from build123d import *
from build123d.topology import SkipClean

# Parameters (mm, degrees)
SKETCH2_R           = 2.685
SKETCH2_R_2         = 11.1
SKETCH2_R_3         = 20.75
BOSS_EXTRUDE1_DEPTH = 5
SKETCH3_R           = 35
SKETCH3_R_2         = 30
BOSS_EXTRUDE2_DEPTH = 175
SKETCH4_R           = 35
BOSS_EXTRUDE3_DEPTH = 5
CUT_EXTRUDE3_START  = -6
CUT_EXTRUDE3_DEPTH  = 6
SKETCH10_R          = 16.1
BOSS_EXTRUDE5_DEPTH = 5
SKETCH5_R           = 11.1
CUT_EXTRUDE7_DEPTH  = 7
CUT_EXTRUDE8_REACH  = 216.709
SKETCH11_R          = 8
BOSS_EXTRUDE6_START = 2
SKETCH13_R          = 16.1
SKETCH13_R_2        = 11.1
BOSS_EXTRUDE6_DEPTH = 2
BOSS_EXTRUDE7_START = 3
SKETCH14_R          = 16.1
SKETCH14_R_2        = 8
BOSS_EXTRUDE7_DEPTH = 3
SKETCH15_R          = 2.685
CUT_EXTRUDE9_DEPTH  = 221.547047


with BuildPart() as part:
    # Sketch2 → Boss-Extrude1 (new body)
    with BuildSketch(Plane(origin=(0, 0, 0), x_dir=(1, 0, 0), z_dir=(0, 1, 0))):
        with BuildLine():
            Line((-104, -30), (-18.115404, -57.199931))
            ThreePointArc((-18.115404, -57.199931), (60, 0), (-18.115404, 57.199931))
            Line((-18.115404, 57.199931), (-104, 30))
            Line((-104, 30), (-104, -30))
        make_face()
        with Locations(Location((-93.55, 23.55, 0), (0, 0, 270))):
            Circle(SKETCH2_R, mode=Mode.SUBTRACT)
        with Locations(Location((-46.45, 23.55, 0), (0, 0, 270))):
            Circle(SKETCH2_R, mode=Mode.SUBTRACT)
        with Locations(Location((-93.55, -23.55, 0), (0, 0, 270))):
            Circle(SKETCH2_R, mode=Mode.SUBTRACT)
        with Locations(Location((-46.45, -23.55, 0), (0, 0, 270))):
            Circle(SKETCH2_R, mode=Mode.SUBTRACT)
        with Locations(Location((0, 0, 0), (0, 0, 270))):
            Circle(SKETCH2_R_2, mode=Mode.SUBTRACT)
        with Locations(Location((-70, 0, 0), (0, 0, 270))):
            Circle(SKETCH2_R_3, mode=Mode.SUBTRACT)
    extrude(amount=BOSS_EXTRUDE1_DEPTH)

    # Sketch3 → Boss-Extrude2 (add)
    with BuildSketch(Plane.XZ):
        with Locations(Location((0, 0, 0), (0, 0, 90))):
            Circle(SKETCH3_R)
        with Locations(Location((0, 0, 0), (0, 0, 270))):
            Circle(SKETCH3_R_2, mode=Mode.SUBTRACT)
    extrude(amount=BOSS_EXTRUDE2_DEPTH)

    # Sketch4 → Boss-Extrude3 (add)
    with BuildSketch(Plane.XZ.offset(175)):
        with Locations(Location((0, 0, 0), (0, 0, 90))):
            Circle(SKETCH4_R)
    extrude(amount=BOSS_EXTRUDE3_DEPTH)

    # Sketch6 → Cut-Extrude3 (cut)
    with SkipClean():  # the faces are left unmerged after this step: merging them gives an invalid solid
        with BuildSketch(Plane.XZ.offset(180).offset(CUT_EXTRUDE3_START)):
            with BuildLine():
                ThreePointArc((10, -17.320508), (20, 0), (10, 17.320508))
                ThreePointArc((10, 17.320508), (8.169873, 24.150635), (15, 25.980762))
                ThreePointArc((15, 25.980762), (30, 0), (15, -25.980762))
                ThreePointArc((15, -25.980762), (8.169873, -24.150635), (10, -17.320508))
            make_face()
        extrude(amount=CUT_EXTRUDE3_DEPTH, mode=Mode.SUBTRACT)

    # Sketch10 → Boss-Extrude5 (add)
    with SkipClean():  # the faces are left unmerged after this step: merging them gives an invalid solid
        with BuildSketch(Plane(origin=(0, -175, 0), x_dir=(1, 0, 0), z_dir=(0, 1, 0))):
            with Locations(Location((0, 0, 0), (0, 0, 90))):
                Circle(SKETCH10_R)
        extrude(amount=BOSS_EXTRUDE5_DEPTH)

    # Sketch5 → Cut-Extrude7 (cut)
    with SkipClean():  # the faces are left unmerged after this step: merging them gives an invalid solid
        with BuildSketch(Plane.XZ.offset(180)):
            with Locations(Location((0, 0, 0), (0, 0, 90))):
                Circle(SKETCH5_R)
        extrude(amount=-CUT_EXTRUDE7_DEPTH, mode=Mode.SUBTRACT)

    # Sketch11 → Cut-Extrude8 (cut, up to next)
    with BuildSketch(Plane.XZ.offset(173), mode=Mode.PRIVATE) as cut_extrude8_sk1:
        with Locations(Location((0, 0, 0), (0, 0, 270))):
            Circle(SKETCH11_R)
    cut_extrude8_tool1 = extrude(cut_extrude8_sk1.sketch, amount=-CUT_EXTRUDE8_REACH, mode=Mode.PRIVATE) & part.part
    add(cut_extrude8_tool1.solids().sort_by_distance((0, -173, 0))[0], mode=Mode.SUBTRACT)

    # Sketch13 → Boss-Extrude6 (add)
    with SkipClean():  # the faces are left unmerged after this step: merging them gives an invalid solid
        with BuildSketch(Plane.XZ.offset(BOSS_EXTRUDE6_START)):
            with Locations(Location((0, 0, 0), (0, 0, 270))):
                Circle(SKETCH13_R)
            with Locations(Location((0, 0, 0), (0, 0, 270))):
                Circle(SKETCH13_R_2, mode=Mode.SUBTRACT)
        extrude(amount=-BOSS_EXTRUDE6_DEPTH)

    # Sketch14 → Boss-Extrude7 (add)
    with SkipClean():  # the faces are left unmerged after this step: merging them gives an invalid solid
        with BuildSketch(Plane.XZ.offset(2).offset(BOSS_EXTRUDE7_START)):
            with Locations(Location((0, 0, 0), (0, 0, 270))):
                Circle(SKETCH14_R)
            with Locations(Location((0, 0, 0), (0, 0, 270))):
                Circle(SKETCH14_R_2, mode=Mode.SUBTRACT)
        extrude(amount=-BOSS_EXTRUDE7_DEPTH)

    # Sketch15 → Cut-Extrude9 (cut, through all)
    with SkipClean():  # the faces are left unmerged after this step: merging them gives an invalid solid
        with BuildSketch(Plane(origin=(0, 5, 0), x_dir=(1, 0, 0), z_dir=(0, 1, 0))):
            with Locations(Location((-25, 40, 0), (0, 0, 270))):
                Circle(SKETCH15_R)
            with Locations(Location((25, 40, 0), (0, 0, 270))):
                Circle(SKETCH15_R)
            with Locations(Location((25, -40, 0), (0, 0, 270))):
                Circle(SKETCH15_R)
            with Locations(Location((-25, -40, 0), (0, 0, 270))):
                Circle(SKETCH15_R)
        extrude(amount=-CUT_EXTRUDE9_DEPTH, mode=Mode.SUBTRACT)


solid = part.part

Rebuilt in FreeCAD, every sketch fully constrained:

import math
import FreeCAD as App
import Part
import Sketcher
from FreeCAD import Vector

doc = App.newDocument("Part")
params = doc.addObject("Spreadsheet::Sheet", "Params")
for row, (alias, value) in enumerate([
    ("sketch1_radius", "60 mm"),
    ("sketch1_diameter", "41.5 mm"),
    ("sketch1_diameter2", "22.2 mm"),
    ("sketch1_diameter3", "5.37 mm"),
    ("sketch1_height", "60 mm"),
    ("pad1_length", "5 mm"),
    ("sketch2_diameter", "70 mm"),
    ("sketch2_diameter2", "60 mm"),
    ("pad2_length", "175 mm"),
    ("sketch3_diameter", "70 mm"),
    ("pad3_length", "5 mm"),
    ("sketch4_radius", "20 mm"),
    ("sketch4_radius2", "5 mm"),
    ("pocket1_length", "6 mm"),
    ("sketch5_diameter", "32.2 mm"),
    ("pad4_length", "5 mm"),
    ("sketch6_diameter", "22.2 mm"),
    ("pocket2_length", "7 mm"),
    ("sketch7_diameter", "16 mm"),
    ("sketch8_diameter", "32.2 mm"),
    ("sketch8_diameter2", "22.2 mm"),
    ("pad5_length", "2 mm"),
    ("sketch9_diameter", "16 mm"),
    ("sketch9_diameter2", "32.2 mm"),
    ("pad6_length", "3 mm"),
    ("sketch10_diameter", "5.37 mm"),
], start=1):
    params.set(f"A{row}", alias)
    params.set(f"B{row}", "=" + value)
    params.setAlias(f"B{row}", alias)

body = doc.addObject("PartDesign::Body", "Body")

sketch1 = body.newObject("Sketcher::SketchObject", "Sketch")
sketch1.AttachmentSupport = (doc.getObject("XZ_Plane"), [""])
sketch1.MapMode = "FlatFace"
sketch1.addGeometry(Part.LineSegment(Vector(-104, 30, 0), Vector(-18.1, 57.2, 0)), False)
sketch1.addGeometry(Part.ArcOfCircle(Part.Circle(Vector(0, 0, 0), Vector(0, 0, 1), 60), math.radians(-108), math.radians(108)), False)
sketch1.addGeometry(Part.LineSegment(Vector(-18.1, -57.2, 0), Vector(-104, -30, 0)), False)
sketch1.addGeometry(Part.LineSegment(Vector(-104, -30, 0), Vector(-104, 30, 0)), False)
sketch1.addGeometry(Part.Circle(Vector(-93.5, 23.6, 0), Vector(0, 0, 1), 2.7), False)
sketch1.addGeometry(Part.Circle(Vector(-46.5, 23.6, 0), Vector(0, 0, 1), 2.7), False)
sketch1.addGeometry(Part.Circle(Vector(-70, 0, 0), Vector(0, 0, 1), 20.8), False)
sketch1.addGeometry(Part.Circle(Vector(0, 0, 0), Vector(0, 0, 1), 11.1), False)
sketch1.addGeometry(Part.Circle(Vector(-93.5, -23.6, 0), Vector(0, 0, 1), 2.7), False)
sketch1.addGeometry(Part.Circle(Vector(-46.5, -23.6, 0), Vector(0, 0, 1), 2.7), False)
sketch1.addConstraint(Sketcher.Constraint("Tangent", 0, 2, 1, 2))
sketch1.addConstraint(Sketcher.Constraint("Tangent", 1, 1, 2, 1))
sketch1.addConstraint(Sketcher.Constraint("Coincident", 2, 2, 3, 1))
sketch1.addConstraint(Sketcher.Constraint("Coincident", 3, 2, 0, 1))
sketch1.addConstraint(Sketcher.Constraint("Vertical", 3))
sketch1.addConstraint(Sketcher.Constraint("Coincident", 1, 3, -1, 1))
sketch1.addConstraint(Sketcher.Constraint("Coincident", 7, 3, -1, 1))
sketch1.addConstraint(Sketcher.Constraint("Equal", 4, 5))
sketch1.addConstraint(Sketcher.Constraint("Equal", 5, 8))
sketch1.addConstraint(Sketcher.Constraint("Equal", 8, 9))
sketch1.addConstraint(Sketcher.Constraint("Symmetric", 4, 3, 8, 3, -1))
sketch1.addConstraint(Sketcher.Constraint("Symmetric", 5, 3, 9, 3, -1))
sketch1.addConstraint(Sketcher.Constraint("PointOnObject", 6, 3, -1))
sketch1.addConstraint(Sketcher.Constraint("Horizontal", 4, 3, 5, 3))
sketch1.addConstraint(Sketcher.Constraint("Vertical", 0, 2, 1, 1))
sketch1.addConstraint(Sketcher.Constraint("Radius", 1, 60.0))
sketch1.addConstraint(Sketcher.Constraint("Diameter", 6, 41.5))
sketch1.addConstraint(Sketcher.Constraint("Diameter", 7, 22.2))
sketch1.addConstraint(Sketcher.Constraint("Diameter", 4, 5.37))
sketch1.addConstraint(Sketcher.Constraint("DistanceY", 3, 1, 3, 2, 60.0))
sketch1.addConstraint(Sketcher.Constraint("DistanceX", 6, 3, -1, 1, 70.0))
sketch1.addConstraint(Sketcher.Constraint("DistanceX", 2, 2, -1, 1, 104.0))
sketch1.addConstraint(Sketcher.Constraint("DistanceX", 4, 3, 5, 3, 47.1))
sketch1.addConstraint(Sketcher.Constraint("DistanceY", 8, 3, 4, 3, 47.1))
sketch1.addConstraint(Sketcher.Constraint("DistanceX", 4, 3, -1, 1, 93.55))
sketch1.setExpression("Constraints[15]", "Params.sketch1_radius")
sketch1.setExpression("Constraints[16]", "Params.sketch1_diameter")
sketch1.setExpression("Constraints[17]", "Params.sketch1_diameter2")
sketch1.setExpression("Constraints[18]", "Params.sketch1_diameter3")
sketch1.setExpression("Constraints[19]", "Params.sketch1_height")
pad1 = body.newObject("PartDesign::Pad", "Pad")
pad1.Profile = sketch1
pad1.setExpression("Length", "Params.pad1_length")
pad1.Reversed = True

sketch2 = body.newObject("Sketcher::SketchObject", "Sketch001")
sketch2.AttachmentSupport = (doc.getObject("XZ_Plane"), [""])
sketch2.MapMode = "FlatFace"
sketch2.addGeometry(Part.Circle(Vector(0, 0, 0), Vector(0, 0, 1), 35), False)
sketch2.addGeometry(Part.Circle(Vector(0, 0, 0), Vector(0, 0, 1), 30), False)
sketch2.addConstraint(Sketcher.Constraint("Coincident", 0, 3, -1, 1))
sketch2.addConstraint(Sketcher.Constraint("Coincident", 1, 3, -1, 1))
sketch2.addConstraint(Sketcher.Constraint("Diameter", 0, 70.0))
sketch2.addConstraint(Sketcher.Constraint("Diameter", 1, 60.0))
sketch2.setExpression("Constraints[2]", "Params.sketch2_diameter")
sketch2.setExpression("Constraints[3]", "Params.sketch2_diameter2")
pad2 = body.newObject("PartDesign::Pad", "Pad001")
pad2.Profile = sketch2
pad2.setExpression("Length", "Params.pad2_length")

sketch3 = body.newObject("Sketcher::SketchObject", "Sketch002")
sketch3.AttachmentSupport = (doc.getObject("XZ_Plane"), [""])
sketch3.MapMode = "FlatFace"
sketch3.AttachmentOffset = App.Placement(Vector(0, 0, 175), App.Rotation())
sketch3.addGeometry(Part.Circle(Vector(0, 0, 0), Vector(0, 0, 1), 35), False)
sketch3.addConstraint(Sketcher.Constraint("Coincident", 0, 3, -1, 1))
sketch3.addConstraint(Sketcher.Constraint("Diameter", 0, 70.0))
sketch3.setExpression("Constraints[1]", "Params.sketch3_diameter")
pad3 = body.newObject("PartDesign::Pad", "Pad002")
pad3.Profile = sketch3
pad3.setExpression("Length", "Params.pad3_length")

sketch4 = body.newObject("Sketcher::SketchObject", "Sketch003")
sketch4.AttachmentSupport = (doc.getObject("XZ_Plane"), [""])
sketch4.MapMode = "FlatFace"
sketch4.AttachmentOffset = App.Placement(Vector(0, 0, 174), App.Rotation())
sketch4.addGeometry(Part.ArcOfCircle(Part.Circle(Vector(0, 0, 0), Vector(0, 0, 1), 20), math.radians(-60), math.radians(60)), False)
sketch4.addGeometry(Part.ArcOfCircle(Part.Circle(Vector(12.5, -21.7, 0), Vector(0, 0, 1), 5), math.radians(120), math.radians(300)), False)
sketch4.addGeometry(Part.ArcOfCircle(Part.Circle(Vector(0, 0, 0), Vector(0, 0, 1), 30), math.radians(-60), math.radians(60)), False)
sketch4.addGeometry(Part.ArcOfCircle(Part.Circle(Vector(12.5, 21.7, 0), Vector(0, 0, 1), 5), math.radians(60), math.radians(240)), False)
sketch4.addConstraint(Sketcher.Constraint("Tangent", 0, 1, 1, 1))
sketch4.addConstraint(Sketcher.Constraint("Tangent", 1, 2, 2, 1))
sketch4.addConstraint(Sketcher.Constraint("Tangent", 2, 2, 3, 1))
sketch4.addConstraint(Sketcher.Constraint("Tangent", 3, 2, 0, 2))
sketch4.addConstraint(Sketcher.Constraint("Coincident", 0, 3, -1, 1))
sketch4.addConstraint(Sketcher.Constraint("Coincident", 2, 3, -1, 1))
sketch4.addConstraint(Sketcher.Constraint("Vertical", 1, 3, 3, 3))
sketch4.addConstraint(Sketcher.Constraint("Radius", 0, 20.0))
sketch4.addConstraint(Sketcher.Constraint("Radius", 1, 5.0))
sketch4.addConstraint(Sketcher.Constraint("DistanceX", -1, 1, 0, 1, 10.0))
sketch4.setExpression("Constraints[7]", "Params.sketch4_radius")
sketch4.setExpression("Constraints[8]", "Params.sketch4_radius2")
pocket1 = body.newObject("PartDesign::Pocket", "Pocket")
pocket1.Profile = sketch4
pocket1.setExpression("Length", "Params.pocket1_length")
pocket1.Reversed = True

sketch5 = body.newObject("Sketcher::SketchObject", "Sketch004")
sketch5.AttachmentSupport = (doc.getObject("XZ_Plane"), [""])
sketch5.MapMode = "FlatFace"
sketch5.AttachmentOffset = App.Placement(Vector(0, 0, 175), App.Rotation())
sketch5.addGeometry(Part.Circle(Vector(0, 0, 0), Vector(0, 0, 1), 16), False)
sketch5.addConstraint(Sketcher.Constraint("Coincident", 0, 3, -1, 1))
sketch5.addConstraint(Sketcher.Constraint("Diameter", 0, 32.2))
sketch5.setExpression("Constraints[1]", "Params.sketch5_diameter")
pad4 = body.newObject("PartDesign::Pad", "Pad003")
pad4.Profile = sketch5
pad4.setExpression("Length", "Params.pad4_length")
pad4.Reversed = True

sketch6 = body.newObject("Sketcher::SketchObject", "Sketch005")
sketch6.AttachmentSupport = (doc.getObject("XZ_Plane"), [""])
sketch6.MapMode = "FlatFace"
sketch6.AttachmentOffset = App.Placement(Vector(0, 0, 180), App.Rotation())
sketch6.addGeometry(Part.Circle(Vector(0, 0, 0), Vector(0, 0, 1), 11), False)
sketch6.addConstraint(Sketcher.Constraint("Coincident", 0, 3, -1, 1))
sketch6.addConstraint(Sketcher.Constraint("Diameter", 0, 22.2))
sketch6.setExpression("Constraints[1]", "Params.sketch6_diameter")
pocket2 = body.newObject("PartDesign::Pocket", "Pocket001")
pocket2.Profile = sketch6
pocket2.setExpression("Length", "Params.pocket2_length")

sketch7 = body.newObject("Sketcher::SketchObject", "Sketch006")
sketch7.AttachmentSupport = (doc.getObject("XZ_Plane"), [""])
sketch7.MapMode = "FlatFace"
sketch7.AttachmentOffset = App.Placement(Vector(0, 0, 173), App.Rotation())
sketch7.addGeometry(Part.Circle(Vector(0, 0, 0), Vector(0, 0, 1), 8), False)
sketch7.addConstraint(Sketcher.Constraint("Coincident", 0, 3, -1, 1))
sketch7.addConstraint(Sketcher.Constraint("Diameter", 0, 16.0))
sketch7.setExpression("Constraints[1]", "Params.sketch7_diameter")
pocket3 = body.newObject("PartDesign::Pocket", "Pocket002")
pocket3.Profile = sketch7
pocket3.Type = "UpToFirst"

sketch8 = body.newObject("Sketcher::SketchObject", "Sketch007")
sketch8.AttachmentSupport = (doc.getObject("XZ_Plane"), [""])
sketch8.MapMode = "FlatFace"
sketch8.AttachmentOffset = App.Placement(Vector(0, 0, 2), App.Rotation())
sketch8.addGeometry(Part.Circle(Vector(0, 0, 0), Vector(0, 0, 1), 16), False)
sketch8.addGeometry(Part.Circle(Vector(0, 0, 0), Vector(0, 0, 1), 11), False)
sketch8.addConstraint(Sketcher.Constraint("Coincident", 0, 3, -1, 1))
sketch8.addConstraint(Sketcher.Constraint("Coincident", 1, 3, -1, 1))
sketch8.addConstraint(Sketcher.Constraint("Diameter", 0, 32.2))
sketch8.addConstraint(Sketcher.Constraint("Diameter", 1, 22.2))
sketch8.setExpression("Constraints[2]", "Params.sketch8_diameter")
sketch8.setExpression("Constraints[3]", "Params.sketch8_diameter2")
pad5 = body.newObject("PartDesign::Pad", "Pad004")
pad5.Profile = sketch8
pad5.setExpression("Length", "Params.pad5_length")
pad5.Reversed = True

sketch9 = body.newObject("Sketcher::SketchObject", "Sketch008")
sketch9.AttachmentSupport = (doc.getObject("XZ_Plane"), [""])
sketch9.MapMode = "FlatFace"
sketch9.AttachmentOffset = App.Placement(Vector(0, 0, 5), App.Rotation())
sketch9.addGeometry(Part.Circle(Vector(0, 0, 0), Vector(0, 0, 1), 16), False)
sketch9.addGeometry(Part.Circle(Vector(0, 0, 0), Vector(0, 0, 1), 8), False)
sketch9.addConstraint(Sketcher.Constraint("Coincident", 0, 3, -1, 1))
sketch9.addConstraint(Sketcher.Constraint("Coincident", 1, 3, -1, 1))
sketch9.addConstraint(Sketcher.Constraint("Diameter", 1, 16.0))
sketch9.addConstraint(Sketcher.Constraint("Diameter", 0, 32.2))
sketch9.setExpression("Constraints[2]", "Params.sketch9_diameter")
sketch9.setExpression("Constraints[3]", "Params.sketch9_diameter2")
pad6 = body.newObject("PartDesign::Pad", "Pad005")
pad6.Profile = sketch9
pad6.setExpression("Length", "Params.pad6_length")
pad6.Reversed = True

sketch10 = body.newObject("Sketcher::SketchObject", "Sketch009")
sketch10.AttachmentSupport = (doc.getObject("XZ_Plane"), [""])
sketch10.MapMode = "FlatFace"
sketch10.AttachmentOffset = App.Placement(Vector(0, 0, -5), App.Rotation())
sketch10.addGeometry(Part.Circle(Vector(-25, -40, 0), Vector(0, 0, 1), 2.7), False)
sketch10.addGeometry(Part.Circle(Vector(25, -40, 0), Vector(0, 0, 1), 2.7), False)
sketch10.addGeometry(Part.Circle(Vector(25, 40, 0), Vector(0, 0, 1), 2.7), False)
sketch10.addGeometry(Part.Circle(Vector(-25, 40, 0), Vector(0, 0, 1), 2.7), False)
sketch10.addConstraint(Sketcher.Constraint("Equal", 0, 1))
sketch10.addConstraint(Sketcher.Constraint("Equal", 1, 2))
sketch10.addConstraint(Sketcher.Constraint("Equal", 2, 3))
sketch10.addConstraint(Sketcher.Constraint("Symmetric", 0, 3, 2, 3, -1, 1))
sketch10.addConstraint(Sketcher.Constraint("Symmetric", 1, 3, 3, 3, -1, 1))
sketch10.addConstraint(Sketcher.Constraint("Symmetric", 0, 3, 1, 3, -2))
sketch10.addConstraint(Sketcher.Constraint("Diameter", 0, 5.37))
sketch10.addConstraint(Sketcher.Constraint("DistanceX", 0, 3, -1, 1, 25.0))
sketch10.addConstraint(Sketcher.Constraint("DistanceY", 0, 3, -1, 1, 40.0))
sketch10.setExpression("Constraints[6]", "Params.sketch10_diameter")
pocket4 = body.newObject("PartDesign::Pocket", "Pocket003")
pocket4.Profile = sketch10
pocket4.Type = "ThroughAll"
pocket4.Reversed = True

doc.recompute()
